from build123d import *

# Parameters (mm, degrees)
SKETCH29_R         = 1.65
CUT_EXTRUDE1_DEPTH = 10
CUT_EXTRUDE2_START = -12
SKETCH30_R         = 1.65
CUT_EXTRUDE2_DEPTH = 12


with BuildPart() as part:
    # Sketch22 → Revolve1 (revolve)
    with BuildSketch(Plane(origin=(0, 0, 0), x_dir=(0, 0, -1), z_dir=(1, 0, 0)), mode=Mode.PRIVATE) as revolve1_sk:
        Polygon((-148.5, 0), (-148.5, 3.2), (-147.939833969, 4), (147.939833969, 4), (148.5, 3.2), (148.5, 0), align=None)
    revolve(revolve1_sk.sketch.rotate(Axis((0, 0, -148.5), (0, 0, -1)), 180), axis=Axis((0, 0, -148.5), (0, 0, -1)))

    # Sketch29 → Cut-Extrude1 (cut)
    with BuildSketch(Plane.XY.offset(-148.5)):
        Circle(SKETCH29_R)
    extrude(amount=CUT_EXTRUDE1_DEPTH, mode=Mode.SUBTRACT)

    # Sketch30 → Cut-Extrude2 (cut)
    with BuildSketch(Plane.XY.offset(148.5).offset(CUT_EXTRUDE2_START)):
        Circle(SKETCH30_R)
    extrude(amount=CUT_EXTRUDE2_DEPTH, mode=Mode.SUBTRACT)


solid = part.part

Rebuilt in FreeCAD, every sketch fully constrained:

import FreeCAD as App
import Part
import Sketcher

V = App.Vector
Q = App.Units.Quantity

doc = App.newDocument("Part")
body = doc.addObject("PartDesign::Body", "Body")

sketch1 = body.newObject("Sketcher::SketchObject", "Sketch")
sketch1.AttachmentSupport = (doc.getObject("YZ_Plane"), [""])
sketch1.MapMode = "FlatFace"
sketch1.addGeometry([
    Part.LineSegment(V(3.2, 148.5, 0), V(0, 148.5, 0)),
    Part.LineSegment(V(0, 148.5, 0), V(0, -148.5, 0)),
    Part.LineSegment(V(0, -148.5, 0), V(3.2, -148.5, 0)),
    Part.LineSegment(V(3.2, -148.5, 0), V(4, -147.9, 0)),
    Part.LineSegment(V(4, -147.9, 0), V(4, 147.9, 0)),
    Part.LineSegment(V(4, 147.9, 0), V(3.2, 148.5, 0)),
], False)
sketch1.addConstraint([
    Sketcher.Constraint("Coincident", 0, 2, 1, 1),
    Sketcher.Constraint("Coincident", 1, 2, 2, 1),
    Sketcher.Constraint("Coincident", 2, 2, 3, 1),
    Sketcher.Constraint("Coincident", 3, 2, 4, 1),
    Sketcher.Constraint("Coincident", 4, 2, 5, 1),
    Sketcher.Constraint("Coincident", 5, 2, 0, 1),
    Sketcher.Constraint("Horizontal", 0),
    Sketcher.Constraint("Vertical", 1),
    Sketcher.Constraint("Horizontal", 2),
    Sketcher.Constraint("Vertical", 4),
    Sketcher.Constraint("Symmetric", 0, 2, 1, 2, -1, 1),
    Sketcher.Constraint("Vertical", 2, 2, 5, 2),
    Sketcher.Constraint("Equal", 3, 5),
    Sketcher.Constraint("DistanceY", 1, 2, 1, 1, Q("297 mm")),
    Sketcher.Constraint("Angle", 3, Q("35 deg")),
    Sketcher.Constraint("DistanceX", 0, 2, 0, 1, Q("3.2 mm")),
    Sketcher.Constraint("DistanceX", -1, 1, 3, 2, Q("4 mm")),
])
revolution = body.newObject("PartDesign::Revolution", "Revolution")
revolution.Profile = sketch1
revolution.ReferenceAxis = (sketch1, ["V_Axis"])
revolution.Angle = 360

sketch2 = body.newObject("Sketcher::SketchObject", "Sketch001")
sketch2.AttachmentSupport = (doc.getObject("XY_Plane"), [""])
sketch2.MapMode = "FlatFace"
sketch2.AttachmentOffset = App.Placement(V(0, 0, -148.5), App.Rotation())
sketch2.addGeometry(Part.Circle(V(0, 0, 0), V(0, 0, 1), 1.6), False)
sketch2.addConstraint([
    Sketcher.Constraint("Coincident", 0, 3, -1, 1),
    Sketcher.Constraint("Diameter", 0, Q("3.3 mm")),
])
pocket1 = body.newObject("PartDesign::Pocket", "Pocket")
pocket1.Profile = sketch2
pocket1.Length = 10
pocket1.Reversed = True

sketch3 = body.newObject("Sketcher::SketchObject", "Sketch002")
sketch3.AttachmentSupport = (doc.getObject("XY_Plane"), [""])
sketch3.MapMode = "FlatFace"
sketch3.AttachmentOffset = App.Placement(V(0, 0, 136.5), App.Rotation())
sketch3.addGeometry(Part.Circle(V(0, 0, 0), V(0, 0, 1), 1.6), False)
sketch3.addConstraint([
    Sketcher.Constraint("Coincident", 0, 3, -1, 1),
    Sketcher.Constraint("Diameter", 0, Q("3.3 mm")),
])
pocket2 = body.newObject("PartDesign::Pocket", "Pocket001")
pocket2.Profile = sketch3
pocket2.Length = 12
pocket2.Reversed = True

doc.recompute()
